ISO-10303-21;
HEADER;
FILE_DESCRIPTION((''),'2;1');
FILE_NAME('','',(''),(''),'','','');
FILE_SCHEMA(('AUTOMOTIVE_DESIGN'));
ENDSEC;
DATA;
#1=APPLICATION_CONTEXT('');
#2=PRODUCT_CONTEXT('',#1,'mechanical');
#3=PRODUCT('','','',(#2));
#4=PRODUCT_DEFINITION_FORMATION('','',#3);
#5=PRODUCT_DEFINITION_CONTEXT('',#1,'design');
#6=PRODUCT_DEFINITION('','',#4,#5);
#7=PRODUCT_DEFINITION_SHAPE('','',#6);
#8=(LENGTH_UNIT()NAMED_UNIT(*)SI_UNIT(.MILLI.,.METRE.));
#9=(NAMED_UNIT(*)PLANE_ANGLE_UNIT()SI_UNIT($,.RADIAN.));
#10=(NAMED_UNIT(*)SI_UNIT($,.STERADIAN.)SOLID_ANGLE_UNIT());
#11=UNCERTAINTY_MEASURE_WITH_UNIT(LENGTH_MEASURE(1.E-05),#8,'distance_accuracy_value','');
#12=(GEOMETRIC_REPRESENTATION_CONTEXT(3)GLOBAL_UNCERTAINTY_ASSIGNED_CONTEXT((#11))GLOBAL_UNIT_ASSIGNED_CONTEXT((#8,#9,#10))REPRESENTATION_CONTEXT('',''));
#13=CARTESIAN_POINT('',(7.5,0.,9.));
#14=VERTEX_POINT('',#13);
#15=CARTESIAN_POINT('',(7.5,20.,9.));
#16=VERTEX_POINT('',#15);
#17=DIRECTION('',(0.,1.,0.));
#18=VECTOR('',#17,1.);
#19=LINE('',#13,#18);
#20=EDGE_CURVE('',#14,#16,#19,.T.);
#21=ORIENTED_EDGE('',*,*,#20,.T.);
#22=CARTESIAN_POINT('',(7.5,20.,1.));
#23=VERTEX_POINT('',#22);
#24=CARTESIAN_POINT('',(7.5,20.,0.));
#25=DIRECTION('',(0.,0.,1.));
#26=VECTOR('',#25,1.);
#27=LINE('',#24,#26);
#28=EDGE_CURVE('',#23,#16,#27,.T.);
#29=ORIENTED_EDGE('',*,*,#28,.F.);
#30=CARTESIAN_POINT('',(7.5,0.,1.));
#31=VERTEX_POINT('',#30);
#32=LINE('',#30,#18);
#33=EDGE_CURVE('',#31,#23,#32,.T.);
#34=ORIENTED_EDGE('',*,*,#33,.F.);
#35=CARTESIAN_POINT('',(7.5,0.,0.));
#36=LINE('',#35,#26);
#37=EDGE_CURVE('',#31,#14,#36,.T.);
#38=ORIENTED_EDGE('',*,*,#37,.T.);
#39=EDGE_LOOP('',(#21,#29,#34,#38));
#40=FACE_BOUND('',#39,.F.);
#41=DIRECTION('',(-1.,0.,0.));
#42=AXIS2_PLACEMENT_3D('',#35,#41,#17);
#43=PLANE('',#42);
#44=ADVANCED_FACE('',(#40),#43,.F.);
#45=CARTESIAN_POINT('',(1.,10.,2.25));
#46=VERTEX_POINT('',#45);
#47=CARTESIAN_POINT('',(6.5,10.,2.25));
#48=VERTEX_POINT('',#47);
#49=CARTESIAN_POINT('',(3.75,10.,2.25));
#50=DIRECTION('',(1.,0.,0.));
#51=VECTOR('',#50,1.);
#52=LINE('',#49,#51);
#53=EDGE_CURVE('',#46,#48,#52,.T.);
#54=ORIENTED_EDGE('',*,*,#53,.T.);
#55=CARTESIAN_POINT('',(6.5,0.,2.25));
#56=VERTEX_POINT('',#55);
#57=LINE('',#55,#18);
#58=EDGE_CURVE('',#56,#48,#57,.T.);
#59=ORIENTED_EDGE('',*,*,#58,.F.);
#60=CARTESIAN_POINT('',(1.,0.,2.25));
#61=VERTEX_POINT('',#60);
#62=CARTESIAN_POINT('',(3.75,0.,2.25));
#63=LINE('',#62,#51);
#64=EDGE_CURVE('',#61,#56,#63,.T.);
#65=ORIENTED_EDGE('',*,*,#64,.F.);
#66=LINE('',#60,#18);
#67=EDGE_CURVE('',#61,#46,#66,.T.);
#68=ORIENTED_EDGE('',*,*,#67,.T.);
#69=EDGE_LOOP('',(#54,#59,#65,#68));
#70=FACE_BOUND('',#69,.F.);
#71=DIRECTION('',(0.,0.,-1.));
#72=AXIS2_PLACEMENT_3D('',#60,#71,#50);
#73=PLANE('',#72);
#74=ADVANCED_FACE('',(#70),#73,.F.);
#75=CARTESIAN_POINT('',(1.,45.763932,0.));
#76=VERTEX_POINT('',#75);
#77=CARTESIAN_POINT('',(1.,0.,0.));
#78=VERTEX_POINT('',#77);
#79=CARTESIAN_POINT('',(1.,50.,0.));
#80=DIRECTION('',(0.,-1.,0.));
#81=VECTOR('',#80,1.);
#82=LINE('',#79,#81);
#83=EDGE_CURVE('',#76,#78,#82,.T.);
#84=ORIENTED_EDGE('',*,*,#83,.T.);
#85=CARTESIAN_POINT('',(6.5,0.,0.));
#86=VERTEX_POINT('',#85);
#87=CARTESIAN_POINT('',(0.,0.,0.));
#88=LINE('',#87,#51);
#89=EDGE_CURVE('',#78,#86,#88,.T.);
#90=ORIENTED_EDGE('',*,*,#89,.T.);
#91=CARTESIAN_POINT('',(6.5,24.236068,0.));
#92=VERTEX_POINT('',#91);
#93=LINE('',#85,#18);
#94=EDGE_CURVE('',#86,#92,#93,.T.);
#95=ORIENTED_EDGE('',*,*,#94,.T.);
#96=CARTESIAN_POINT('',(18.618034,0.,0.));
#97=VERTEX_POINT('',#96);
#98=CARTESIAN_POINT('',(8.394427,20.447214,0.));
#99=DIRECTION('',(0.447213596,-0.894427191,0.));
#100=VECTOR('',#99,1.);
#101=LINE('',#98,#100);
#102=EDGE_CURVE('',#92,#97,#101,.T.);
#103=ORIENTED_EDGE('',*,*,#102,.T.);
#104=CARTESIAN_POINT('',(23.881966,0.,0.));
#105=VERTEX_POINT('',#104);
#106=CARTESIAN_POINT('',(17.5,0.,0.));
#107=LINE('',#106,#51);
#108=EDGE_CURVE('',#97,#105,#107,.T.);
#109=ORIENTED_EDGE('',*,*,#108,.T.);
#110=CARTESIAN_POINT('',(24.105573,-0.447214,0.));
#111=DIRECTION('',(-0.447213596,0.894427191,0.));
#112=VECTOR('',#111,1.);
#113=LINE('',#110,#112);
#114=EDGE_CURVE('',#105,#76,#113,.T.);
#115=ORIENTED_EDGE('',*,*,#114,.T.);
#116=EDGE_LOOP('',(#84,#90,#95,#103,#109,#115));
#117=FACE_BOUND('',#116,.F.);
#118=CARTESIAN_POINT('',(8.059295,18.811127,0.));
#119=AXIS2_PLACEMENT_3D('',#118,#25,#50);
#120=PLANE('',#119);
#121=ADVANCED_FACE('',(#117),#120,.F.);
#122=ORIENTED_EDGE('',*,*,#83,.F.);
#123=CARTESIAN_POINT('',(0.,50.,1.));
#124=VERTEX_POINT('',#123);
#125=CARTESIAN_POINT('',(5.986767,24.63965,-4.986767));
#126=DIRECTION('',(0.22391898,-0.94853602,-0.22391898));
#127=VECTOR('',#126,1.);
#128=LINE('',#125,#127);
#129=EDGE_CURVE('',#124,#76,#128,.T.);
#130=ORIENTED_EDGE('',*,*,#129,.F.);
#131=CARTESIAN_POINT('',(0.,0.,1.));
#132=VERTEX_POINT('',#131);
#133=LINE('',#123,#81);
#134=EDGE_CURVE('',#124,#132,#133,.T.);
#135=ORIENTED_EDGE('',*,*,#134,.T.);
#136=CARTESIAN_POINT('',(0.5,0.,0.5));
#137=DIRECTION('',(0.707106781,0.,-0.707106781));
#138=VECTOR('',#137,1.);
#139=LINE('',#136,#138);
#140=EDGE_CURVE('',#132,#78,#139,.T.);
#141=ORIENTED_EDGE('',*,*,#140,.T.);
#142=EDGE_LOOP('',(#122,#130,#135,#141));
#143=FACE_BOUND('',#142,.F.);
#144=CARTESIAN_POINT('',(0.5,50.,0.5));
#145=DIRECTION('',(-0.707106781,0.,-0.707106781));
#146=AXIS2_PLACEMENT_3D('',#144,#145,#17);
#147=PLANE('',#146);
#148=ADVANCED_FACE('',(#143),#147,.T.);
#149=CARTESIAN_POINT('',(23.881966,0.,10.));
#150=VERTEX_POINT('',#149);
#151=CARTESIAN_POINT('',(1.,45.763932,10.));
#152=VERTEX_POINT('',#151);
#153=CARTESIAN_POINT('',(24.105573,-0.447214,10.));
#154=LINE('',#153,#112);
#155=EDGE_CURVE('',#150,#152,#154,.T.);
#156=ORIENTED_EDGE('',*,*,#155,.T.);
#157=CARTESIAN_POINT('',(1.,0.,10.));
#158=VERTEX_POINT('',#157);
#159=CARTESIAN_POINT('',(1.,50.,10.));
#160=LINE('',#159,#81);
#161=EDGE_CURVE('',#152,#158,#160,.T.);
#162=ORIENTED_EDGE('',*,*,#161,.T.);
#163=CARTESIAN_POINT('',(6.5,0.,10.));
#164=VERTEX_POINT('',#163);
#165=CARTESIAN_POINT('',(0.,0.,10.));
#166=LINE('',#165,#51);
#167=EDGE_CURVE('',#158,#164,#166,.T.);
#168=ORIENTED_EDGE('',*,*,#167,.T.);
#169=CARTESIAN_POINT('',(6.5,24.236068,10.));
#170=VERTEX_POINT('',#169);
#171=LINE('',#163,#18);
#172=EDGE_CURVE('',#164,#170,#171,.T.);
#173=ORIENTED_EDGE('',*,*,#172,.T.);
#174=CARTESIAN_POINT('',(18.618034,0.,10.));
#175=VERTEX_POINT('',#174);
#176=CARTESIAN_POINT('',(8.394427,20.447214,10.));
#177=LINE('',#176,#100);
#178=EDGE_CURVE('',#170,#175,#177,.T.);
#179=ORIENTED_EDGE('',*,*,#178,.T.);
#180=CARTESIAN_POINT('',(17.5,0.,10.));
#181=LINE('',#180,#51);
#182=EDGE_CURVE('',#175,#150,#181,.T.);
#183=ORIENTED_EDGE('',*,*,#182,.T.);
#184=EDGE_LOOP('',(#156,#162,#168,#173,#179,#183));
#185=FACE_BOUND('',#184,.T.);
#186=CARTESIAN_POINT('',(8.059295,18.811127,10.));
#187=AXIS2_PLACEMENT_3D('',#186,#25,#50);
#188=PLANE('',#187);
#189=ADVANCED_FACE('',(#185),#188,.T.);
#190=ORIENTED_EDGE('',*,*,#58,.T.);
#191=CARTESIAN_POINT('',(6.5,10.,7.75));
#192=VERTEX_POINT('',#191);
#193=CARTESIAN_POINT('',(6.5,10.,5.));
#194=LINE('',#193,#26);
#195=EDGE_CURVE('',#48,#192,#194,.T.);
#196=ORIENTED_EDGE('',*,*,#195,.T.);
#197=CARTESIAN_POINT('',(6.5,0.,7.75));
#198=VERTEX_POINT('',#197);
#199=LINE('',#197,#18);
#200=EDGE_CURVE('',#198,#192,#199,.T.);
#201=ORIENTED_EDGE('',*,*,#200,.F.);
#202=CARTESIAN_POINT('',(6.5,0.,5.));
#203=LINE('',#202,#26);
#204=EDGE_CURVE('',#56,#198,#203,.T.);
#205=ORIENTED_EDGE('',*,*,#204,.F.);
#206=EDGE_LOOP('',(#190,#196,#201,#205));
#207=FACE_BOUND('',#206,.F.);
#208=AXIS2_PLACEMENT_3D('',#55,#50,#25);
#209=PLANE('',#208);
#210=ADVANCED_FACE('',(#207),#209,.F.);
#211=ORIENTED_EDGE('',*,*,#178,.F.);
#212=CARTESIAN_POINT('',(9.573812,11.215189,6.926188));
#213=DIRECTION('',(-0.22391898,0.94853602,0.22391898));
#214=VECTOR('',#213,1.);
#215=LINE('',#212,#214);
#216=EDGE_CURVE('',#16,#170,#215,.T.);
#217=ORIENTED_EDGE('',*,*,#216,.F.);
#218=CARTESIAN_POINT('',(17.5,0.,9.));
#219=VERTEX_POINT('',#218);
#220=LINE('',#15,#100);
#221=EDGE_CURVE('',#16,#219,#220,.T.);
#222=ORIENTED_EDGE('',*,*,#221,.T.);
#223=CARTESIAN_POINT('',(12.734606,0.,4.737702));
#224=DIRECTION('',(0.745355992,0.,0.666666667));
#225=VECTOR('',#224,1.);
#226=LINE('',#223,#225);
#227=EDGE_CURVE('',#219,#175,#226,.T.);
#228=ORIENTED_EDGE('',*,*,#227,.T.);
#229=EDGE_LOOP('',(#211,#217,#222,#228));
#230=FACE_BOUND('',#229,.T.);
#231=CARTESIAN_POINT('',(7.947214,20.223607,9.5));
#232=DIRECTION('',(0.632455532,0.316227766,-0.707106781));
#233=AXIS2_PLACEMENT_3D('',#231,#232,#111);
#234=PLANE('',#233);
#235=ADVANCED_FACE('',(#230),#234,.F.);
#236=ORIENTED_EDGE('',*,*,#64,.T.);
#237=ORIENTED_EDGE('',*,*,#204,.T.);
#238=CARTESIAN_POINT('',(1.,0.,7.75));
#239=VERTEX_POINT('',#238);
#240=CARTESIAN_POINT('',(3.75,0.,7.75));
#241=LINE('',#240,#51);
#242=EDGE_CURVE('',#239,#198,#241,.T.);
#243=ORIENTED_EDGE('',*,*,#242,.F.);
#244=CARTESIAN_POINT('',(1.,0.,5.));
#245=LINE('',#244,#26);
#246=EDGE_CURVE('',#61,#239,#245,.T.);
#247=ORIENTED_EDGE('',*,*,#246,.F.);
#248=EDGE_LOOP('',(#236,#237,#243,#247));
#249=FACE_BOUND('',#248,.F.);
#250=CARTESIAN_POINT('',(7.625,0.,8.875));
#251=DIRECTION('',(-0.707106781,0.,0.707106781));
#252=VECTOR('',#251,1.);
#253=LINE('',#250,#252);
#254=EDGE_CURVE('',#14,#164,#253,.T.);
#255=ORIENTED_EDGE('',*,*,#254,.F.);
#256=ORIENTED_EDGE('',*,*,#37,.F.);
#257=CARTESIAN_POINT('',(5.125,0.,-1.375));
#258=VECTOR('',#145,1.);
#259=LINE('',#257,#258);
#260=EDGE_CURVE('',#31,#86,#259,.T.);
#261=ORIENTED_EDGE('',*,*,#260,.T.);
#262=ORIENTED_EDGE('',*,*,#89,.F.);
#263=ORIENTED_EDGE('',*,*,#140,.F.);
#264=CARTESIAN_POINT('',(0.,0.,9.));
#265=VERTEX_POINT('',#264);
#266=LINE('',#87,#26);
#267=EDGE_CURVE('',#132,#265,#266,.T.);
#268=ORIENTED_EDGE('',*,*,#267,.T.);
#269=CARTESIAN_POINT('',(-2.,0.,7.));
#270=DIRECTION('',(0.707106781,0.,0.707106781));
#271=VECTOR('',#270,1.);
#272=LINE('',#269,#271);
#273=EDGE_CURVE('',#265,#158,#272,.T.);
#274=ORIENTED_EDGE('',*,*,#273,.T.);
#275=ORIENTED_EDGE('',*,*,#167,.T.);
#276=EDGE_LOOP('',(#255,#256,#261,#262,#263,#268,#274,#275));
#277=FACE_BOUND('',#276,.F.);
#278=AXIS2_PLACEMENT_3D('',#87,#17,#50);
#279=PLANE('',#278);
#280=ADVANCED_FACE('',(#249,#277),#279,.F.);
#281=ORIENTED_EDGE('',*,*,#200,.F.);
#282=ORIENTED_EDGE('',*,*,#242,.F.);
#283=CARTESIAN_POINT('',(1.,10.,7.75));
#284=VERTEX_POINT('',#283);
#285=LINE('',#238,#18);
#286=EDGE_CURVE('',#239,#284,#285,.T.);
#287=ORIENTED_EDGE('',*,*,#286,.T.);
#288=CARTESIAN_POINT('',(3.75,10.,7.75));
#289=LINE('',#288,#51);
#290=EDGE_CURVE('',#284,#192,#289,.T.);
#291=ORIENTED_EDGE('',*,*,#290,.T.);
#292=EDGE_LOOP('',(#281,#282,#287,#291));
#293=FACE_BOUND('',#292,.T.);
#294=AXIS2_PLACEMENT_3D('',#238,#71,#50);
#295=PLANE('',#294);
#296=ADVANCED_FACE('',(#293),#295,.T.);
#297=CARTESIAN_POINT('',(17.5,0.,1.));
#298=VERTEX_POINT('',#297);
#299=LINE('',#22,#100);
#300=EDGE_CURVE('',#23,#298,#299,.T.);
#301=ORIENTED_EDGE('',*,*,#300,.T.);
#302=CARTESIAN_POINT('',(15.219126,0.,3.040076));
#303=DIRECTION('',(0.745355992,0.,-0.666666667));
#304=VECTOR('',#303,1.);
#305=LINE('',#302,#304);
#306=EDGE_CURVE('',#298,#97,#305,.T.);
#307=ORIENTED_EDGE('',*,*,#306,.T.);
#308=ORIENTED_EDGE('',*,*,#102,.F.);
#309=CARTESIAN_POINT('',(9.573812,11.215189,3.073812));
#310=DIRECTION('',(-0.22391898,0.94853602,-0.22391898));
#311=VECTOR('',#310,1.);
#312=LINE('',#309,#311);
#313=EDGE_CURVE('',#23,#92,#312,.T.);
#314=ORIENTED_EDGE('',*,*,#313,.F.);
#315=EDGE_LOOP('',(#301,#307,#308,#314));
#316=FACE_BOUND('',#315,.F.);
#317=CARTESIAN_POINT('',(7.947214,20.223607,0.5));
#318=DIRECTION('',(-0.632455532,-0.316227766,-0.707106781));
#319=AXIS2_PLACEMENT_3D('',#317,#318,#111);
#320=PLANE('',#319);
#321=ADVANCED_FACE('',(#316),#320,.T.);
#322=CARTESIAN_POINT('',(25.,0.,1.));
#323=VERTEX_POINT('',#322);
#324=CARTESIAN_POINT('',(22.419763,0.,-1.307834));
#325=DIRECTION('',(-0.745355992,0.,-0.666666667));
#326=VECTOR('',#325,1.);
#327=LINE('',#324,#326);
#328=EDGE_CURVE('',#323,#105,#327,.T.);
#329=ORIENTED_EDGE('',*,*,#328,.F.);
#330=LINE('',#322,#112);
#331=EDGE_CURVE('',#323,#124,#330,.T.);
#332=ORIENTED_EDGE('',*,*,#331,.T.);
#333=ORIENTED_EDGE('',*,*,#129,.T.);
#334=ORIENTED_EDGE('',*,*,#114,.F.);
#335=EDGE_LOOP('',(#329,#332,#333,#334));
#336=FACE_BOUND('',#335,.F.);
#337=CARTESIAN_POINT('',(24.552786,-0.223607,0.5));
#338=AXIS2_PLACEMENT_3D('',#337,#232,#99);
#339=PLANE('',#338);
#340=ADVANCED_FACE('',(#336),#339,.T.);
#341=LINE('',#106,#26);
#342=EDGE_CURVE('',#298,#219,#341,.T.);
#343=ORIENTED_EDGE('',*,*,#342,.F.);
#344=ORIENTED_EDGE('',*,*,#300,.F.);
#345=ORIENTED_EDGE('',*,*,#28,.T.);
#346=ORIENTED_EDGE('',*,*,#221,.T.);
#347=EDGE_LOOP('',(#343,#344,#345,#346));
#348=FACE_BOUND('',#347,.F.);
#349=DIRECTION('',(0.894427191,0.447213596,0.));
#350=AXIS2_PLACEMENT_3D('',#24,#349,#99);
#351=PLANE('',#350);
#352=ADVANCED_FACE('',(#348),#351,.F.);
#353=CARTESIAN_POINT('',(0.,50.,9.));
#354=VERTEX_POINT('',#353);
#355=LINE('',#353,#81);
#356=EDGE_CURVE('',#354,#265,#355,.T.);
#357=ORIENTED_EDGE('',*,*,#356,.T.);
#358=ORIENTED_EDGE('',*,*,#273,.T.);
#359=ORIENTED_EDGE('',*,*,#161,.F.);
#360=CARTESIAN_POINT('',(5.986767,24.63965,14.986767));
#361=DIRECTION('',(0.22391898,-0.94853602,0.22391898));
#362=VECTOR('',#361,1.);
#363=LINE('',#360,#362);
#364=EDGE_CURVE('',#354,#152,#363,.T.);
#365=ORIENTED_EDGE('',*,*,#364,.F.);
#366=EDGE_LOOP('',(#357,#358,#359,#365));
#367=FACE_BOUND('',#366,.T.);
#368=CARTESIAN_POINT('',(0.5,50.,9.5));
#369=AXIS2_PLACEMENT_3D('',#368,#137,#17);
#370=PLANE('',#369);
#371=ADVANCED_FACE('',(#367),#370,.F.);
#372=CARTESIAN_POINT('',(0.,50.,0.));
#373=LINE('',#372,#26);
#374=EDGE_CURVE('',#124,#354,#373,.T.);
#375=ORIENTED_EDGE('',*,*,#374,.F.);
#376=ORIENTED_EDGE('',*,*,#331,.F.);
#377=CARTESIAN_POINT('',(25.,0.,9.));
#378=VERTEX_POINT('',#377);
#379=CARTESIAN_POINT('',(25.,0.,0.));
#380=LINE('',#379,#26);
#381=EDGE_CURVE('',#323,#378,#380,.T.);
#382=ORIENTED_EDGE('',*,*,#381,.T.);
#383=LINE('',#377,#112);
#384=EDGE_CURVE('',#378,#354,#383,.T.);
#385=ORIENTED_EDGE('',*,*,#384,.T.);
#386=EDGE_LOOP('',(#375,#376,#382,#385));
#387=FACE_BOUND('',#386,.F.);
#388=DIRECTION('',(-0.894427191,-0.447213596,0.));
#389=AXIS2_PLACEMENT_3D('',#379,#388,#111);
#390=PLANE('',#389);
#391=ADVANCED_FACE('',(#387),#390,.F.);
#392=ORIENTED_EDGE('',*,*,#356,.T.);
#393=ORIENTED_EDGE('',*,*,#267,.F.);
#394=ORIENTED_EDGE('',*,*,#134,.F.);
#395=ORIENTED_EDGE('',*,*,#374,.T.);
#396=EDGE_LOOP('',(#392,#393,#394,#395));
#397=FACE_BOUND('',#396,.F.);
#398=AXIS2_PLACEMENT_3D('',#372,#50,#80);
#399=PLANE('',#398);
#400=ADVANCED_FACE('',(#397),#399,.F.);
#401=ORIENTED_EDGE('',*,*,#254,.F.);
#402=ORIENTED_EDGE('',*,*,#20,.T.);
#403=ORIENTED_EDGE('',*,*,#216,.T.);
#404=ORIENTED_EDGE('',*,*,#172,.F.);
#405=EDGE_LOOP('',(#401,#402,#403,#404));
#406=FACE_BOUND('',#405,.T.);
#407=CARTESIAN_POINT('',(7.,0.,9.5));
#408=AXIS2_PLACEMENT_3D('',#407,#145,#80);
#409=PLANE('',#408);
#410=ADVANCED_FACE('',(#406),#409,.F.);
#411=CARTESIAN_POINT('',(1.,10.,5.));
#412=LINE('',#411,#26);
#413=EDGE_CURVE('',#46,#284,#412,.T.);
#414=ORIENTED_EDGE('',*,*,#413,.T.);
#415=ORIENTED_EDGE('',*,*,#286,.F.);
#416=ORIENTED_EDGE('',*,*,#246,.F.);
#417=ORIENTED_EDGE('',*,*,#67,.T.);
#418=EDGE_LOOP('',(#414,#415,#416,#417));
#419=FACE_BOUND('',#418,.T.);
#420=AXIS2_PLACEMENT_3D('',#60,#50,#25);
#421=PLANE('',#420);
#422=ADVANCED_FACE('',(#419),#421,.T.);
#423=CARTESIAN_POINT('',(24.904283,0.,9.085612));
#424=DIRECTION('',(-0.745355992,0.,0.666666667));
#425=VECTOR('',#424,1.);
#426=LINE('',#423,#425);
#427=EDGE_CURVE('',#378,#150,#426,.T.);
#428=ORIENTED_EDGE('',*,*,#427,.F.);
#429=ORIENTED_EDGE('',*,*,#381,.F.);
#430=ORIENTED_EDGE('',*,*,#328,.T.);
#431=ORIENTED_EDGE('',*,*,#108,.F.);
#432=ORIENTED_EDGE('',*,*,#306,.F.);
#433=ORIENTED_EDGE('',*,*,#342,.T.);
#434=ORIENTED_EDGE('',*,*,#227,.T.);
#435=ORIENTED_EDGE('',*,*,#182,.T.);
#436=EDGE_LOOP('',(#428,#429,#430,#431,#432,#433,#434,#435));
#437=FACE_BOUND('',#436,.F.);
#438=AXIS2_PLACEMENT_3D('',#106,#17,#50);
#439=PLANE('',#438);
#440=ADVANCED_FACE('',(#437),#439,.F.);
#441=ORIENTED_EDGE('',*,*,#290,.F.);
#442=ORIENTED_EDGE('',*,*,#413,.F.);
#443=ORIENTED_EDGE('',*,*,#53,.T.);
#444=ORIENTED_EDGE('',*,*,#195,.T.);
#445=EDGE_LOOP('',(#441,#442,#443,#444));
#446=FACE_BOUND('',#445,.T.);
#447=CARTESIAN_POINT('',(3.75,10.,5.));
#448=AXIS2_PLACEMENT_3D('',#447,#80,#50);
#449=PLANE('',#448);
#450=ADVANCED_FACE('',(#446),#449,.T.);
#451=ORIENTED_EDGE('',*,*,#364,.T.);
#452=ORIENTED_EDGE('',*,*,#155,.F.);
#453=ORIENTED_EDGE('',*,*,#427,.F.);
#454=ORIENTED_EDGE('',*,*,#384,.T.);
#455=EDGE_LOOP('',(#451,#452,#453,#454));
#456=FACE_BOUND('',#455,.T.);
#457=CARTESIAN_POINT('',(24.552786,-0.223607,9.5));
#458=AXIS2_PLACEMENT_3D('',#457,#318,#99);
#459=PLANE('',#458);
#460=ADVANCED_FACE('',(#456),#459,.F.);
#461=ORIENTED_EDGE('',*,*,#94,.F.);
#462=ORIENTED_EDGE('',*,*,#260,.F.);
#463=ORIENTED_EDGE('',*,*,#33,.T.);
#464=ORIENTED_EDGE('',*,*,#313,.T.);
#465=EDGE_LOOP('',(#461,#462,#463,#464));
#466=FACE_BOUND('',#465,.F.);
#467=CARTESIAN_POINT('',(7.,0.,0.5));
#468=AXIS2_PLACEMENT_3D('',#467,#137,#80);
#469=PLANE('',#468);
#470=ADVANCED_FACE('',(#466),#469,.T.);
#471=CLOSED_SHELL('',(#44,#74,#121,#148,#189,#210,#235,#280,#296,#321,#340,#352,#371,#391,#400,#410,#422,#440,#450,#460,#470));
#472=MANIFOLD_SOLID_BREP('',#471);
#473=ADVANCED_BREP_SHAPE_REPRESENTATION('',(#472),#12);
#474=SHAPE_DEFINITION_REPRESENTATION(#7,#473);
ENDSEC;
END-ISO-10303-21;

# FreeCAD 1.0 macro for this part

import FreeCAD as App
import Part
import Sketcher

V = App.Vector
Q = App.Units.Quantity


def edges_at(feature, points):
    """Names of the edges that pass closest to the given points."""
    edges = feature.Shape.Edges
    near = lambda p: min(range(len(edges)), key=lambda i: edges[i].distToShape(Part.Vertex(*p))[0])
    return sorted({f"Edge{near(p) + 1}" for p in points})


def add_polygon(sketch, points):
    """Adds a closed chain of lines whose ends are joined by coincident constraints."""
    first, n = sketch.GeometryCount, len(points)
    for a, b in zip(points, points[1:] + points[:1]):
        sketch.addGeometry(Part.LineSegment(App.Vector(*a, 0), App.Vector(*b, 0)), False)
    for i in range(n):
        sketch.addConstraint(Sketcher.Constraint("Coincident", first + i, 2, first + (i + 1) % n, 1))

doc = App.newDocument("Part")
params = doc.addObject("Spreadsheet::Sheet", "Params")
for row, (alias, value) in enumerate([
    ("sketch1_height", "50 mm"),
    ("sketch1_height2", "20 mm"),
    ("sketch1_width", "7.5 mm"),
    ("pad1_length", "10 mm"),
    ("chamfer_size", "1 mm"),
    ("sketch2_width", "5.5 mm"),
    ("pocket1_length", "10 mm"),
], start=1):
    params.set(f"A{row}", alias)
    params.set(f"B{row}", "=" + value)
    params.setAlias(f"B{row}", alias)

body = doc.addObject("PartDesign::Body", "Body")

# Sketch on XY plane
sketch1 = body.newObject("Sketcher::SketchObject", "Sketch")
sketch1.AttachmentSupport = (doc.getObject("XY_Plane"), [""])
sketch1.MapMode = "FlatFace"
add_polygon(sketch1, [(0, 50), (0, 0), (8, 0), (8, 20), (18, 0), (25, 0)])  # lines 0-5
sketch1.addConstraint([
    Sketcher.Constraint("Vertical", 0),
    Sketcher.Constraint("Horizontal", 1),
    Sketcher.Constraint("Vertical", 2),
    Sketcher.Constraint("Horizontal", 4),
    Sketcher.Constraint("Coincident", 0, 2, -1, 1),
    Sketcher.Constraint("PointOnObject", 3, 2, -1),
    Sketcher.Constraint("Parallel", 3, 5),
    Sketcher.Constraint("Equal", 1, 4),
    Sketcher.Constraint("DistanceY", 0, 2, 0, 1, Q("50 mm")),
    Sketcher.Constraint("DistanceY", 2, 1, 2, 2, Q("20 mm")),
    Sketcher.Constraint("DistanceX", 1, 1, 1, 2, Q("7.5 mm")),
])
sketch1.setExpression("Constraints[14]", "Params.sketch1_height")
sketch1.setExpression("Constraints[15]", "Params.sketch1_height2")
sketch1.setExpression("Constraints[16]", "Params.sketch1_width")
pad1 = body.newObject("PartDesign::Pad", "Pad")
pad1.Profile = sketch1
pad1.setExpression("Length", "Params.pad1_length")
doc.recompute()

chamfer = body.newObject("PartDesign::Chamfer", "Chamfer")
chamfer.Base = (pad1, edges_at(pad1, [
    (12.5, 10, 10),
    (7.5, 10, 10),
    (0, 25, 10),
    (12.5, 25, 10),
    (12.5, 10, 0),
    (7.5, 10, 0),
    (0, 25, 0),
    (12.5, 25, 0),
]))
chamfer.setExpression("Size", "Params.chamfer_size")

# Sketch on XZ plane
sketch2 = body.newObject("Sketcher::SketchObject", "Sketch001")
sketch2.AttachmentSupport = (doc.getObject("XZ_Plane"), [""])
sketch2.MapMode = "FlatFace"
add_polygon(sketch2, [(1, 8), (1, 2), (6, 2), (6, 8)])  # lines 0-3
sketch2.addConstraint([
    Sketcher.Constraint("Vertical", 0),
    Sketcher.Constraint("Horizontal", 1),
    Sketcher.Constraint("Vertical", 2),
    Sketcher.Constraint("Horizontal", 3),
    Sketcher.Constraint("Equal", 3, 0),
    Sketcher.Constraint("DistanceX", 1, 1, 1, 2, Q("5.5 mm")),
    Sketcher.Constraint("DistanceX", -1, 1, 0, 2, Q("1 mm")),
    Sketcher.Constraint("DistanceY", -1, 1, 0, 2, Q("2.25 mm")),
])
sketch2.setExpression("Constraints[9]", "Params.sketch2_width")
pocket1 = body.newObject("PartDesign::Pocket", "Pocket")
pocket1.Profile = sketch2
pocket1.setExpression("Length", "Params.pocket1_length")

doc.recompute()
